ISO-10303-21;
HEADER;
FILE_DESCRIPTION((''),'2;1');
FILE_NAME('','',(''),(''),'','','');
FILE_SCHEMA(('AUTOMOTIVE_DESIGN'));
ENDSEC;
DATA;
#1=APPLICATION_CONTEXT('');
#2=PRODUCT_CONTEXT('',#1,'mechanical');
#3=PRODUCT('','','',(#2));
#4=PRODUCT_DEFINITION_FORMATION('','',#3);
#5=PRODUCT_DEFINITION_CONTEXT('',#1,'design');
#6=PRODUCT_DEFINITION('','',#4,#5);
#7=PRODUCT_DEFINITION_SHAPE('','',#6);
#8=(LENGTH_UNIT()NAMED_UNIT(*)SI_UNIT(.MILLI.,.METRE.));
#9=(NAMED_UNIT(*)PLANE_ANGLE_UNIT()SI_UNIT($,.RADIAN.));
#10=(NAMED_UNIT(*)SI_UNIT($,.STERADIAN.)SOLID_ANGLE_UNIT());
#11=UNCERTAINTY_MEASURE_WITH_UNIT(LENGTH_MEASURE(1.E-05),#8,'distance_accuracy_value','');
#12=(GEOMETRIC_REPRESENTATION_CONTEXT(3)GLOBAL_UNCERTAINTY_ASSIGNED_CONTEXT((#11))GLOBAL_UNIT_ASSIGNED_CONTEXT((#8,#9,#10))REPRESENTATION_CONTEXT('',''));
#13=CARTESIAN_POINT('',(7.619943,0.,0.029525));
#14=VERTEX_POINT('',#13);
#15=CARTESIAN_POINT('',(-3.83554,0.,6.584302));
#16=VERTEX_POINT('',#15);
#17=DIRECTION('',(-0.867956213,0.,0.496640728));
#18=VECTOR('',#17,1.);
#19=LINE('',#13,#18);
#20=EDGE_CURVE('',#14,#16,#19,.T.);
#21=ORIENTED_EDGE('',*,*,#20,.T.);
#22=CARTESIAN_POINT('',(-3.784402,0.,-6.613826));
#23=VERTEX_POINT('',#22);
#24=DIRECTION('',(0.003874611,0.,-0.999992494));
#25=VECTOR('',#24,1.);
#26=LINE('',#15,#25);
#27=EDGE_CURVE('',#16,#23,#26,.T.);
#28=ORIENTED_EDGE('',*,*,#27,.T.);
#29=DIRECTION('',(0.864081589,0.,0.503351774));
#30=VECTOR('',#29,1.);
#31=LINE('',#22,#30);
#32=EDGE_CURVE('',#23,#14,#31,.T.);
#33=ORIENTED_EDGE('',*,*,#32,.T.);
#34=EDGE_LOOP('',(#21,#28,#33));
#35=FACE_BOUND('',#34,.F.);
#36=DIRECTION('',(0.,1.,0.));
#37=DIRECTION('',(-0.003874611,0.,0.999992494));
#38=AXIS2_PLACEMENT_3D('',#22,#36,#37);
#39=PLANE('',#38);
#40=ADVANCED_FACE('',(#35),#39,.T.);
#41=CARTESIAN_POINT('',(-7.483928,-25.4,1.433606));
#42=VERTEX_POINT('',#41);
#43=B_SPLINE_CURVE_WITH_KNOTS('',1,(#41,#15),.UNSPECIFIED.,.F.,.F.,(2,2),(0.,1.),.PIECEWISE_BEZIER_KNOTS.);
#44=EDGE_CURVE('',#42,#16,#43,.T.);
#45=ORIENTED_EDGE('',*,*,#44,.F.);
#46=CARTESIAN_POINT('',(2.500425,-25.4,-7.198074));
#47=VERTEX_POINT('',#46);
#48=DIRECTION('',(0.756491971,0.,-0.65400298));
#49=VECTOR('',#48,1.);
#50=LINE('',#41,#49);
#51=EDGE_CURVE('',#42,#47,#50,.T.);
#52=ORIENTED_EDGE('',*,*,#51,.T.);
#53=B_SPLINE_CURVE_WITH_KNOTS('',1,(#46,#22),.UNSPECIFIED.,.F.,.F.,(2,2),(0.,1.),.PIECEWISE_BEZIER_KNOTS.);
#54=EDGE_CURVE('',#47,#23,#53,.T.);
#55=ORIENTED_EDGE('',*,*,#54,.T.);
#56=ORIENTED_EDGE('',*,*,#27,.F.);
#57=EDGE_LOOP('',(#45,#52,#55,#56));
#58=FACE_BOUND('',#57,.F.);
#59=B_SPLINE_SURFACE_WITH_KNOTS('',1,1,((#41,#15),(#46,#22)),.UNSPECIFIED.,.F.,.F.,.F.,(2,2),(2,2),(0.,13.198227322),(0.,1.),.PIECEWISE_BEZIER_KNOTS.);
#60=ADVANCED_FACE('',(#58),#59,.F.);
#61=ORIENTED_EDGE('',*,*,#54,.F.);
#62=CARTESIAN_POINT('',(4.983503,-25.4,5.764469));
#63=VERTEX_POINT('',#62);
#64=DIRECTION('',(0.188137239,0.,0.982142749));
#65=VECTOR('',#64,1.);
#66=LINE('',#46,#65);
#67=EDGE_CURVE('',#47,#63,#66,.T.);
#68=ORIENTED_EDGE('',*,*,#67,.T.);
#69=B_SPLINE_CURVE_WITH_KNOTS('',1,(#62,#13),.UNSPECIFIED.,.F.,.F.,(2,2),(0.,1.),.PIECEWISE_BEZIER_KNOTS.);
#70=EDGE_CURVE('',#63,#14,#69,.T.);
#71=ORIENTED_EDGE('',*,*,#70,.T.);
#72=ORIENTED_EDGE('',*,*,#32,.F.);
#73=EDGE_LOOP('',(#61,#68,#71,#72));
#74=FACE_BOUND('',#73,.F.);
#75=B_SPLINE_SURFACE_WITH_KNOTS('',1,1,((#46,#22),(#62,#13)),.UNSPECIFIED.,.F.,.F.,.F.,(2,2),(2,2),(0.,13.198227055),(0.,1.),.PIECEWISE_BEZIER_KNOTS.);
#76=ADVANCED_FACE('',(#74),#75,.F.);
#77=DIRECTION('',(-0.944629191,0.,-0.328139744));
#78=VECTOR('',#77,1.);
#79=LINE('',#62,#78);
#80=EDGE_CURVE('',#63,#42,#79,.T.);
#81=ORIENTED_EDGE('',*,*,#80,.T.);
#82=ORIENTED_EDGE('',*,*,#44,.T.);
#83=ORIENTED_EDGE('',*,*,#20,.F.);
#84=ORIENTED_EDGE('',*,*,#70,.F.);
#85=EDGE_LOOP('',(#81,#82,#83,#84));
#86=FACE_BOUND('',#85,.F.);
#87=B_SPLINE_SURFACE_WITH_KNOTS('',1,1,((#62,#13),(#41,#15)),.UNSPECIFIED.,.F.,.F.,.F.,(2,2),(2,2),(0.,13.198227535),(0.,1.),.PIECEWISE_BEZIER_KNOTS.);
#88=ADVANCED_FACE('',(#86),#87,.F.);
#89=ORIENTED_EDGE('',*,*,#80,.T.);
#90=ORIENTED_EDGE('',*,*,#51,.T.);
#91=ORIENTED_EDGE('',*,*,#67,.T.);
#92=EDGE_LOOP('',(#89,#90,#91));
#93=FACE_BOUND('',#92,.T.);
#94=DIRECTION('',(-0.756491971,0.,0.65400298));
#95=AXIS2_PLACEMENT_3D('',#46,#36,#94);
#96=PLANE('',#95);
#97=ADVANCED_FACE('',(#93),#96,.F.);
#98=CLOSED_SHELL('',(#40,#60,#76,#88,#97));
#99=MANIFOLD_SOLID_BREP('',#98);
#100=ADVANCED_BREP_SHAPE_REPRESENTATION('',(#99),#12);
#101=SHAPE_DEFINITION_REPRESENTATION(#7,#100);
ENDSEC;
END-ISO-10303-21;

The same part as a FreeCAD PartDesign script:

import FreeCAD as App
import Part
import Sketcher

V = App.Vector

doc = App.newDocument("Part")
body = doc.addObject("PartDesign::Body", "Body")

# Sketch on XZ plane
sketch1 = body.newObject("Sketcher::SketchObject", "Sketch")
sketch1.AttachmentSupport = (doc.getObject("XZ_Plane"), [""])
sketch1.MapMode = "FlatFace"
sketch1.AttachmentOffset = App.Placement(V(0, 0, 25.4), App.Rotation())
sketch1.addGeometry([
    Part.LineSegment(V(2.500425, -7.198074, 0), V(4.983503, 5.764469, 0)),
    Part.LineSegment(V(4.983503, 5.764469, 0), V(-7.483928, 1.433606, 0)),
    Part.LineSegment(V(-7.483928, 1.433606, 0), V(2.500425, -7.198074, 0)),
], False)
sketch1.addConstraint([
    Sketcher.Constraint("Coincident", 0, 2, 1, 1),
    Sketcher.Constraint("Coincident", 1, 2, 2, 1),
    Sketcher.Constraint("Coincident", 2, 2, 0, 1),
    Sketcher.Constraint("Equal", 0, 1),
    Sketcher.Constraint("Equal", 1, 2),
    Sketcher.Constraint("DistanceY", -1, 1, 0, 2, 5.764469),
    Sketcher.Constraint("DistanceX", 1, 2, 0, 2, 12.467431),
    Sketcher.Constraint("DistanceY", 2, 2, 1, 2, 8.63168),
    Sketcher.Constraint("DistanceX", -1, 1, 0, 2, 4.983503),
])

# Sketch on XZ plane
sketch2 = body.newObject("Sketcher::SketchObject", "Sketch001")
sketch2.AttachmentSupport = (doc.getObject("XZ_Plane"), [""])
sketch2.MapMode = "FlatFace"
sketch2.addGeometry([
    Part.LineSegment(V(7.619943, 0.029525, 0), V(-3.83554, 6.584302, 0)),
    Part.LineSegment(V(-3.83554, 6.584302, 0), V(-3.784402, -6.613826, 0)),
    Part.LineSegment(V(-3.784402, -6.613826, 0), V(7.619943, 0.029525, 0)),
], False)
sketch2.addConstraint([
    Sketcher.Constraint("Coincident", 0, 2, 1, 1),
    Sketcher.Constraint("Coincident", 1, 2, 2, 1),
    Sketcher.Constraint("Coincident", 2, 2, 0, 1),
    Sketcher.Constraint("Equal", 0, 1),
    Sketcher.Constraint("Equal", 1, 2),
    Sketcher.Constraint("DistanceX", 1, 2, -1, 1, 3.784402),
    Sketcher.Constraint("DistanceX", 0, 2, -1, 1, 3.83554),
    Sketcher.Constraint("DistanceY", 1, 2, 2, 2, 6.643351),
    Sketcher.Constraint("DistanceY", -1, 1, 0, 2, 6.584302),
])

additiveloft = body.newObject("PartDesign::AdditiveLoft", "AdditiveLoft")
additiveloft.Profile = sketch1
additiveloft.Sections = [sketch2]

doc.recompute()
